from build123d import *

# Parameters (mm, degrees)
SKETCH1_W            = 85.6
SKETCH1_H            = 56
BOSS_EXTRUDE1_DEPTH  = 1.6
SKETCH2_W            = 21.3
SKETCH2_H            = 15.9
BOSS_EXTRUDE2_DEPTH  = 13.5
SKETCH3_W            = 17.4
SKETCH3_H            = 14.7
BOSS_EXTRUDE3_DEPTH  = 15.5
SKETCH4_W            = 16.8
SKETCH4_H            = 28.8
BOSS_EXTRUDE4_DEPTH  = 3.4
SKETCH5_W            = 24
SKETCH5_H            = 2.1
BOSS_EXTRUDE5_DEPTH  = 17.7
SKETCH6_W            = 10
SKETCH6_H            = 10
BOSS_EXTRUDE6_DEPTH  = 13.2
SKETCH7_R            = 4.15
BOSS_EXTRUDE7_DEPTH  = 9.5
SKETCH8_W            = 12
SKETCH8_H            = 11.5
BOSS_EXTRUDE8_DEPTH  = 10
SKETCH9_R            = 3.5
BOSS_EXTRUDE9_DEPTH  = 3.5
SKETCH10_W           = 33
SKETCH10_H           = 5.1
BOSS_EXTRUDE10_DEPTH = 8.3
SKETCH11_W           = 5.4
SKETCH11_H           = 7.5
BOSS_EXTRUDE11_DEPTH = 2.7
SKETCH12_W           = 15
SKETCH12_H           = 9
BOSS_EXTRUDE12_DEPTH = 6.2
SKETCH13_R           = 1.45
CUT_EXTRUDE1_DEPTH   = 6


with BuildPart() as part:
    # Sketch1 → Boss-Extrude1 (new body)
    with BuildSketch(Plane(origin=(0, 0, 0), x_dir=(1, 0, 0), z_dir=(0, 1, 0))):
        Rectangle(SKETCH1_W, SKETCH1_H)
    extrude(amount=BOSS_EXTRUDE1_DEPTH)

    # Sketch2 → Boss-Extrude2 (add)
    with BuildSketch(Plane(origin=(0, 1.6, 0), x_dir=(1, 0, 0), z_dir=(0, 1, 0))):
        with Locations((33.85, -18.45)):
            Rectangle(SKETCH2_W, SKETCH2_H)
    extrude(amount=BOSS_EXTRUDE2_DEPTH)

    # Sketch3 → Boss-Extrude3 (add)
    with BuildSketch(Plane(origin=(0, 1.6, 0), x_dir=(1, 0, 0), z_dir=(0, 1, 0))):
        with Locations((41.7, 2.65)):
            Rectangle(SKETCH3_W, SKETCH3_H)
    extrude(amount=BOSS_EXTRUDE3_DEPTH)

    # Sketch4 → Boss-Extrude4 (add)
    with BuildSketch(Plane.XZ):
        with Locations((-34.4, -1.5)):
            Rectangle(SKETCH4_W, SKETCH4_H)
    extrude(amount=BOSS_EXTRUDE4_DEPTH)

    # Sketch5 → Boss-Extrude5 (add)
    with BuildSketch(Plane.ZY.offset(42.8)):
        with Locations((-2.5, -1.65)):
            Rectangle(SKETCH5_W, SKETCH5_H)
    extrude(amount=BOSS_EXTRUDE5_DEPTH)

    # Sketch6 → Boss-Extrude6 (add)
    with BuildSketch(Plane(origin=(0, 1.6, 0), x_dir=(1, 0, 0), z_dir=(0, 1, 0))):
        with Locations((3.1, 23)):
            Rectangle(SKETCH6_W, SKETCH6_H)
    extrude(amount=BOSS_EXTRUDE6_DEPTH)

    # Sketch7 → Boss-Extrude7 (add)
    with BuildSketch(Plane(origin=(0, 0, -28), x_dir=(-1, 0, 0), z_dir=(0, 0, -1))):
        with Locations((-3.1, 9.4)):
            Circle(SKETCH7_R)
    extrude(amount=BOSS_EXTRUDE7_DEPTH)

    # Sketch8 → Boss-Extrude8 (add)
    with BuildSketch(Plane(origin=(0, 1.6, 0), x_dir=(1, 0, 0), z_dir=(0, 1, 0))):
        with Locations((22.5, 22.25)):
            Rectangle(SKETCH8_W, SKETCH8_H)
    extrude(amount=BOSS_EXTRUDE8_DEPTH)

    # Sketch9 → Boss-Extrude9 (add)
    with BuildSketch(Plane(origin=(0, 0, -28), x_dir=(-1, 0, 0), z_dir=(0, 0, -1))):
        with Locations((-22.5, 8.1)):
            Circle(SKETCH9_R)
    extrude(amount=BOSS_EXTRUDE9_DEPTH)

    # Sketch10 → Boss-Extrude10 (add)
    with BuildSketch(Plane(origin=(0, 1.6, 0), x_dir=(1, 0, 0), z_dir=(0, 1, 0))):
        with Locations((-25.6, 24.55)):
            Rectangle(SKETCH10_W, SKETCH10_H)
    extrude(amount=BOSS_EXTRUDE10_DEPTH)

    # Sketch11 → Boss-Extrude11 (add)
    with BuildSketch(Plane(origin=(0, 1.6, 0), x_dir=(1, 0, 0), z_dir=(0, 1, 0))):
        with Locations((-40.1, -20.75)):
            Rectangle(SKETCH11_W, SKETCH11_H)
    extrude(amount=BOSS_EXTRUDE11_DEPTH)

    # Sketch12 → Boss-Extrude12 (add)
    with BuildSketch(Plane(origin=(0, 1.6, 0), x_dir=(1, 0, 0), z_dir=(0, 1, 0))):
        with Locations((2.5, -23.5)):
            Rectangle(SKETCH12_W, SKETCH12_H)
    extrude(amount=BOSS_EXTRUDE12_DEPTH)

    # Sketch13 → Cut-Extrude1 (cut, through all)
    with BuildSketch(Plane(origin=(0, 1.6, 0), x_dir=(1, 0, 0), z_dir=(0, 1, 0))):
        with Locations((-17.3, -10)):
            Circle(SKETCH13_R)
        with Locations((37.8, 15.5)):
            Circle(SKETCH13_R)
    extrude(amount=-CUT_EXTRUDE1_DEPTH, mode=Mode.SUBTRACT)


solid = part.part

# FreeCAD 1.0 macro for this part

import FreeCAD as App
import Part
import Sketcher
from FreeCAD import Vector
Q = App.Units.Quantity


def add_polygon(sketch, points):
    """Adds a closed chain of lines whose ends are joined by coincident constraints."""
    first, n = sketch.GeometryCount, len(points)
    for a, b in zip(points, points[1:] + points[:1]):
        sketch.addGeometry(Part.LineSegment(App.Vector(*a, 0), App.Vector(*b, 0)), False)
    for i in range(n):
        sketch.addConstraint(Sketcher.Constraint("Coincident", first + i, 2, first + (i + 1) % n, 1))

doc = App.newDocument("Part")
params = doc.addObject("Spreadsheet::Sheet", "Params")
for row, (alias, value) in enumerate([
    ("sketch1_height", "56 mm"),
    ("sketch1_width", "85.6 mm"),
    ("pad1_length", "1.6 mm"),
    ("sketch2_width", "21.3 mm"),
    ("sketch2_height", "15.9 mm"),
    ("pad2_length", "13.5 mm"),
    ("sketch3_width", "17.4 mm"),
    ("sketch3_height", "14.7 mm"),
    ("pad3_length", "15.5 mm"),
    ("sketch4_width", "16.8 mm"),
    ("sketch4_height", "28.8 mm"),
    ("pad4_length", "3.4 mm"),
    ("sketch5_height", "24 mm"),
    ("sketch5_width", "2.1 mm"),
    ("pad5_length", "17.7 mm"),
    ("sketch6_width", "10 mm"),
    ("pad6_length", "13.2 mm"),
    ("sketch7_diameter", "8.3 mm"),
    ("pad7_length", "9.5 mm"),
    ("sketch8_width", "12 mm"),
    ("sketch8_height", "11.5 mm"),
    ("pad8_length", "10 mm"),
    ("sketch9_diameter", "7 mm"),
    ("pad9_length", "3.5 mm"),
    ("sketch10_width", "33 mm"),
    ("sketch10_height", "5.1 mm"),
    ("pad10_length", "8.3 mm"),
    ("sketch11_width", "5.4 mm"),
    ("sketch11_height", "7.5 mm"),
    ("pad11_length", "2.7 mm"),
    ("sketch12_width", "15 mm"),
    ("sketch12_height", "9 mm"),
    ("pad12_length", "6.2 mm"),
    ("sketch13_diameter", "2.9 mm"),
], start=1):
    params.set(f"A{row}", alias)
    params.set(f"B{row}", "=" + value)
    params.setAlias(f"B{row}", alias)

body = doc.addObject("PartDesign::Body", "Body")

# Sketch on XZ plane
sketch1 = doc.addObject("Sketcher::SketchObject", "Sketch")
body.addObject(sketch1)
sketch1.AttachmentSupport = (doc.XZ_Plane, [""])
sketch1.MapMode = "FlatFace"
add_polygon(sketch1, [(-43, -28), (-43, 28), (43, 28), (43, -28)])  # lines 0-3
sketch1.addConstraint(Sketcher.Constraint("Vertical", 0))
sketch1.addConstraint(Sketcher.Constraint("Horizontal", 1))
sketch1.addConstraint(Sketcher.Constraint("Vertical", 2))
sketch1.addConstraint(Sketcher.Constraint("Horizontal", 3))
sketch1.addConstraint(Sketcher.Constraint("Symmetric", 0, 2, 2, 2, -1, 1))
sketch1.addConstraint(Sketcher.Constraint("DistanceY", 0, 1, 0, 2, Q("56 mm")))
sketch1.addConstraint(Sketcher.Constraint("DistanceX", 1, 1, 1, 2, Q("85.6 mm")))
sketch1.setExpression("Constraints[9]", "Params.sketch1_height")
sketch1.setExpression("Constraints[10]", "Params.sketch1_width")
pad1 = doc.addObject("PartDesign::Pad", "Pad")
body.addObject(pad1)
pad1.Profile = sketch1
pad1.setExpression("Length", "Params.pad1_length")
pad1.Reversed = True

# Sketch on XZ plane
sketch2 = doc.addObject("Sketcher::SketchObject", "Sketch001")
body.addObject(sketch2)
sketch2.AttachmentSupport = (doc.XZ_Plane, [""])
sketch2.MapMode = "FlatFace"
sketch2.AttachmentOffset = App.Placement(Vector(0, 0, -1.6), App.Rotation())
add_polygon(sketch2, [(23, 10), (23, 26), (44, 26), (44, 10)])  # lines 0-3
sketch2.addConstraint(Sketcher.Constraint("Vertical", 0))
sketch2.addConstraint(Sketcher.Constraint("Horizontal", 1))
sketch2.addConstraint(Sketcher.Constraint("Vertical", 2))
sketch2.addConstraint(Sketcher.Constraint("Horizontal", 3))
sketch2.addConstraint(Sketcher.Constraint("DistanceX", 1, 1, 1, 2, Q("21.3 mm")))
sketch2.addConstraint(Sketcher.Constraint("DistanceY", 0, 1, 0, 2, Q("15.9 mm")))
sketch2.addConstraint(Sketcher.Constraint("DistanceX", -1, 1, 0, 2, Q("23.2 mm")))
sketch2.addConstraint(Sketcher.Constraint("DistanceY", -1, 1, 0, 2, Q("26.4 mm")))
sketch2.setExpression("Constraints[8]", "Params.sketch2_width")
sketch2.setExpression("Constraints[9]", "Params.sketch2_height")
pad2 = doc.addObject("PartDesign::Pad", "Pad001")
body.addObject(pad2)
pad2.Profile = sketch2
pad2.setExpression("Length", "Params.pad2_length")
pad2.Reversed = True

# Sketch on XZ plane
sketch3 = doc.addObject("Sketcher::SketchObject", "Sketch002")
body.addObject(sketch3)
sketch3.AttachmentSupport = (doc.XZ_Plane, [""])
sketch3.MapMode = "FlatFace"
sketch3.AttachmentOffset = App.Placement(Vector(0, 0, -1.6), App.Rotation())
add_polygon(sketch3, [(33, -10), (33, 5), (50, 5), (50, -10)])  # lines 0-3
sketch3.addConstraint(Sketcher.Constraint("Vertical", 0))
sketch3.addConstraint(Sketcher.Constraint("Horizontal", 1))
sketch3.addConstraint(Sketcher.Constraint("Vertical", 2))
sketch3.addConstraint(Sketcher.Constraint("Horizontal", 3))
sketch3.addConstraint(Sketcher.Constraint("DistanceX", 1, 1, 1, 2, Q("17.4 mm")))
sketch3.addConstraint(Sketcher.Constraint("DistanceY", 0, 1, 0, 2, Q("14.7 mm")))
sketch3.addConstraint(Sketcher.Constraint("DistanceX", -1, 1, 0, 2, Q("33 mm")))
sketch3.addConstraint(Sketcher.Constraint("DistanceY", 2, 2, -1, 1, Q("10 mm")))
sketch3.setExpression("Constraints[8]", "Params.sketch3_width")
sketch3.setExpression("Constraints[9]", "Params.sketch3_height")
pad3 = doc.addObject("PartDesign::Pad", "Pad002")
body.addObject(pad3)
pad3.Profile = sketch3
pad3.setExpression("Length", "Params.pad3_length")
pad3.Reversed = True

# Sketch on XZ plane
sketch4 = doc.addObject("Sketcher::SketchObject", "Sketch003")
body.addObject(sketch4)
sketch4.AttachmentSupport = (doc.XZ_Plane, [""])
sketch4.MapMode = "FlatFace"
add_polygon(sketch4, [(-43, 13), (-43, -16), (-26, -16), (-26, 13)])  # lines 0-3
sketch4.addConstraint(Sketcher.Constraint("Vertical", 0))
sketch4.addConstraint(Sketcher.Constraint("Horizontal", 1))
sketch4.addConstraint(Sketcher.Constraint("Vertical", 2))
sketch4.addConstraint(Sketcher.Constraint("Horizontal", 3))
sketch4.addConstraint(Sketcher.Constraint("DistanceX", 1, 1, 1, 2, Q("16.8 mm")))
sketch4.addConstraint(Sketcher.Constraint("DistanceY", 0, 2, 0, 1, Q("28.8 mm")))
sketch4.addConstraint(Sketcher.Constraint("DistanceX", 1, 2, -1, 1, Q("26 mm")))
sketch4.addConstraint(Sketcher.Constraint("DistanceY", 0, 2, -1, 1, Q("15.9 mm")))
sketch4.setExpression("Constraints[8]", "Params.sketch4_width")
sketch4.setExpression("Constraints[9]", "Params.sketch4_height")
pad4 = doc.addObject("PartDesign::Pad", "Pad003")
body.addObject(pad4)
pad4.Profile = sketch4
pad4.setExpression("Length", "Params.pad4_length")

# Sketch on YZ plane
sketch5 = doc.addObject("Sketcher::SketchObject", "Sketch004")
body.addObject(sketch5)
sketch5.AttachmentSupport = (doc.YZ_Plane, [""])
sketch5.MapMode = "FlatFace"
sketch5.AttachmentOffset = App.Placement(Vector(0, 0, -42.8), App.Rotation())
add_polygon(sketch5, [(-0.6, -14.5), (-2.7, -14.5), (-2.7, 9.5), (-0.6, 9.5)])  # lines 0-3
sketch5.addConstraint(Sketcher.Constraint("Horizontal", 0))
sketch5.addConstraint(Sketcher.Constraint("Vertical", 1))
sketch5.addConstraint(Sketcher.Constraint("Horizontal", 2))
sketch5.addConstraint(Sketcher.Constraint("Vertical", 3))
sketch5.addConstraint(Sketcher.Constraint("DistanceY", 1, 1, 1, 2, Q("24 mm")))
sketch5.addConstraint(Sketcher.Constraint("DistanceX", 0, 2, 0, 1, Q("2.1 mm")))
sketch5.addConstraint(Sketcher.Constraint("DistanceX", 0, 2, -1, 1, Q("2.7 mm")))
sketch5.addConstraint(Sketcher.Constraint("DistanceY", 0, 2, -1, 1, Q("14.5 mm")))
sketch5.setExpression("Constraints[8]", "Params.sketch5_height")
sketch5.setExpression("Constraints[9]", "Params.sketch5_width")
pad5 = doc.addObject("PartDesign::Pad", "Pad004")
body.addObject(pad5)
pad5.Profile = sketch5
pad5.setExpression("Length", "Params.pad5_length")
pad5.Reversed = True

# Sketch on XZ plane
sketch6 = doc.addObject("Sketcher::SketchObject", "Sketch005")
body.addObject(sketch6)
sketch6.AttachmentSupport = (doc.XZ_Plane, [""])
sketch6.MapMode = "FlatFace"
sketch6.AttachmentOffset = App.Placement(Vector(0, 0, -1.6), App.Rotation())
add_polygon(sketch6, [(-2, -28), (-2, -18), (8, -18), (8, -28)])  # lines 0-3
sketch6.addConstraint(Sketcher.Constraint("Vertical", 0))
sketch6.addConstraint(Sketcher.Constraint("Horizontal", 1))
sketch6.addConstraint(Sketcher.Constraint("Vertical", 2))
sketch6.addConstraint(Sketcher.Constraint("Horizontal", 3))
sketch6.addConstraint(Sketcher.Constraint("Equal", 3, 0))
sketch6.addConstraint(Sketcher.Constraint("DistanceX", 1, 1, 1, 2, Q("10 mm")))
sketch6.addConstraint(Sketcher.Constraint("DistanceY", 0, 2, -1, 1, Q("18 mm")))
sketch6.addConstraint(Sketcher.Constraint("DistanceX", 0, 2, -1, 1, Q("1.9 mm")))
sketch6.setExpression("Constraints[9]", "Params.sketch6_width")
pad6 = doc.addObject("PartDesign::Pad", "Pad005")
body.addObject(pad6)
pad6.Profile = sketch6
pad6.setExpression("Length", "Params.pad6_length")
pad6.Reversed = True

# Sketch on XY plane
sketch7 = doc.addObject("Sketcher::SketchObject", "Sketch006")
body.addObject(sketch7)
sketch7.AttachmentSupport = (doc.XY_Plane, [""])
sketch7.MapMode = "FlatFace"
sketch7.AttachmentOffset = App.Placement(Vector(0, 0, -28), App.Rotation())
sketch7.addGeometry(Part.Circle(Vector(3.1, 9.4, 0), Vector(0, 0, 1), 4.2), False)
sketch7.addConstraint(Sketcher.Constraint("Diameter", 0, Q("8.3 mm")))
sketch7.addConstraint(Sketcher.Constraint("DistanceX", -1, 1, 0, 3, Q("3.1 mm")))
sketch7.addConstraint(Sketcher.Constraint("DistanceY", -1, 1, 0, 3, Q("9.4 mm")))
sketch7.setExpression("Constraints[0]", "Params.sketch7_diameter")
pad7 = doc.addObject("PartDesign::Pad", "Pad006")
body.addObject(pad7)
pad7.Profile = sketch7
pad7.setExpression("Length", "Params.pad7_length")
pad7.Reversed = True

# Sketch on XZ plane
sketch8 = doc.addObject("Sketcher::SketchObject", "Sketch007")
body.addObject(sketch8)
sketch8.AttachmentSupport = (doc.XZ_Plane, [""])
sketch8.MapMode = "FlatFace"
sketch8.AttachmentOffset = App.Placement(Vector(0, 0, -1.6), App.Rotation())
add_polygon(sketch8, [(16, -28), (16, -16), (28, -16), (28, -28)])  # lines 0-3
sketch8.addConstraint(Sketcher.Constraint("Vertical", 0))
sketch8.addConstraint(Sketcher.Constraint("Horizontal", 1))
sketch8.addConstraint(Sketcher.Constraint("Vertical", 2))
sketch8.addConstraint(Sketcher.Constraint("Horizontal", 3))
sketch8.addConstraint(Sketcher.Constraint("DistanceX", 1, 1, 1, 2, Q("12 mm")))
sketch8.addConstraint(Sketcher.Constraint("DistanceY", 0, 1, 0, 2, Q("11.5 mm")))
sketch8.addConstraint(Sketcher.Constraint("DistanceY", 2, 2, -1, 1, Q("28 mm")))
sketch8.addConstraint(Sketcher.Constraint("DistanceX", -1, 1, 0, 2, Q("16.5 mm")))
sketch8.setExpression("Constraints[8]", "Params.sketch8_width")
sketch8.setExpression("Constraints[9]", "Params.sketch8_height")
pad8 = doc.addObject("PartDesign::Pad", "Pad007")
body.addObject(pad8)
pad8.Profile = sketch8
pad8.setExpression("Length", "Params.pad8_length")
pad8.Reversed = True

# Sketch on XY plane
sketch9 = doc.addObject("Sketcher::SketchObject", "Sketch008")
body.addObject(sketch9)
sketch9.AttachmentSupport = (doc.XY_Plane, [""])
sketch9.MapMode = "FlatFace"
sketch9.AttachmentOffset = App.Placement(Vector(0, 0, -28), App.Rotation())
sketch9.addGeometry(Part.Circle(Vector(22.5, 8.1, 0), Vector(0, 0, 1), 3.5), False)
sketch9.addConstraint(Sketcher.Constraint("Diameter", 0, Q("7 mm")))
sketch9.addConstraint(Sketcher.Constraint("DistanceX", -1, 1, 0, 3, Q("22.5 mm")))
sketch9.addConstraint(Sketcher.Constraint("DistanceY", -1, 1, 0, 3, Q("8.1 mm")))
sketch9.setExpression("Constraints[0]", "Params.sketch9_diameter")
pad9 = doc.addObject("PartDesign::Pad", "Pad008")
body.addObject(pad9)
pad9.Profile = sketch9
pad9.setExpression("Length", "Params.pad9_length")
pad9.Reversed = True

# Sketch on XZ plane
sketch10 = doc.addObject("Sketcher::SketchObject", "Sketch009")
body.addObject(sketch10)
sketch10.AttachmentSupport = (doc.XZ_Plane, [""])
sketch10.MapMode = "FlatFace"
sketch10.AttachmentOffset = App.Placement(Vector(0, 0, -1.6), App.Rotation())
add_polygon(sketch10, [(-42, -27), (-42, -22), (-9, -22), (-9, -27)])  # lines 0-3
sketch10.addConstraint(Sketcher.Constraint("Vertical", 0))
sketch10.addConstraint(Sketcher.Constraint("Horizontal", 1))
sketch10.addConstraint(Sketcher.Constraint("Vertical", 2))
sketch10.addConstraint(Sketcher.Constraint("Horizontal", 3))
sketch10.addConstraint(Sketcher.Constraint("DistanceX", 1, 1, 1, 2, Q("33 mm")))
sketch10.addConstraint(Sketcher.Constraint("DistanceY", 0, 1, 0, 2, Q("5.1 mm")))
sketch10.addConstraint(Sketcher.Constraint("DistanceY", 0, 2, -1, 1, Q("22 mm")))
sketch10.addConstraint(Sketcher.Constraint("DistanceX", 0, 2, -1, 1, Q("42.1 mm")))
sketch10.setExpression("Constraints[8]", "Params.sketch10_width")
sketch10.setExpression("Constraints[9]", "Params.sketch10_height")
pad10 = doc.addObject("PartDesign::Pad", "Pad009")
body.addObject(pad10)
pad10.Profile = sketch10
pad10.setExpression("Length", "Params.pad10_length")
pad10.Reversed = True

# Sketch on XZ plane
sketch11 = doc.addObject("Sketcher::SketchObject", "Sketch010")
body.addObject(sketch11)
sketch11.AttachmentSupport = (doc.XZ_Plane, [""])
sketch11.MapMode = "FlatFace"
sketch11.AttachmentOffset = App.Placement(Vector(0, 0, -1.6), App.Rotation())
add_polygon(sketch11, [(-43, 17), (-43, 24), (-37, 24), (-37, 17)])  # lines 0-3
sketch11.addConstraint(Sketcher.Constraint("Vertical", 0))
sketch11.addConstraint(Sketcher.Constraint("Horizontal", 1))
sketch11.addConstraint(Sketcher.Constraint("Vertical", 2))
sketch11.addConstraint(Sketcher.Constraint("Horizontal", 3))
sketch11.addConstraint(Sketcher.Constraint("DistanceX", 1, 1, 1, 2, Q("5.4 mm")))
sketch11.addConstraint(Sketcher.Constraint("DistanceY", 0, 1, 0, 2, Q("7.5 mm")))
sketch11.addConstraint(Sketcher.Constraint("DistanceY", -1, 1, 2, 2, Q("17 mm")))
sketch11.addConstraint(Sketcher.Constraint("DistanceX", 0, 2, -1, 1, Q("42.8 mm")))
sketch11.setExpression("Constraints[8]", "Params.sketch11_width")
sketch11.setExpression("Constraints[9]", "Params.sketch11_height")
pad11 = doc.addObject("PartDesign::Pad", "Pad010")
body.addObject(pad11)
pad11.Profile = sketch11
pad11.setExpression("Length", "Params.pad11_length")
pad11.Reversed = True

# Sketch on XZ plane
sketch12 = doc.addObject("Sketcher::SketchObject", "Sketch011")
body.addObject(sketch12)
sketch12.AttachmentSupport = (doc.XZ_Plane, [""])
sketch12.MapMode = "FlatFace"
sketch12.AttachmentOffset = App.Placement(Vector(0, 0, -1.6), App.Rotation())
add_polygon(sketch12, [(-5, 19), (-5, 28), (10, 28), (10, 19)])  # lines 0-3
sketch12.addConstraint(Sketcher.Constraint("Vertical", 0))
sketch12.addConstraint(Sketcher.Constraint("Horizontal", 1))
sketch12.addConstraint(Sketcher.Constraint("Vertical", 2))
sketch12.addConstraint(Sketcher.Constraint("Horizontal", 3))
sketch12.addConstraint(Sketcher.Constraint("DistanceX", 1, 1, 1, 2, Q("15 mm")))
sketch12.addConstraint(Sketcher.Constraint("DistanceY", 0, 1, 0, 2, Q("9 mm")))
sketch12.addConstraint(Sketcher.Constraint("DistanceX", 0, 2, -1, 1, Q("5 mm")))
sketch12.addConstraint(Sketcher.Constraint("DistanceY", -1, 1, 0, 2, Q("28 mm")))
sketch12.setExpression("Constraints[8]", "Params.sketch12_width")
sketch12.setExpression("Constraints[9]", "Params.sketch12_height")
pad12 = doc.addObject("PartDesign::Pad", "Pad011")
body.addObject(pad12)
pad12.Profile = sketch12
pad12.setExpression("Length", "Params.pad12_length")
pad12.Reversed = True

# Sketch on XZ plane
sketch13 = doc.addObject("Sketcher::SketchObject", "Sketch012")
body.addObject(sketch13)
sketch13.AttachmentSupport = (doc.XZ_Plane, [""])
sketch13.MapMode = "FlatFace"
sketch13.AttachmentOffset = App.Placement(Vector(0, 0, -1.6), App.Rotation())
sketch13.addGeometry(Part.Circle(Vector(-17.3, 10, 0), Vector(0, 0, 1), 1.4), False)
sketch13.addGeometry(Part.Circle(Vector(37.8, -15.5, 0), Vector(0, 0, 1), 1.4), False)
sketch13.addConstraint(Sketcher.Constraint("Equal", 0, 1))
sketch13.addConstraint(Sketcher.Constraint("Diameter", 0, Q("2.9 mm")))
sketch13.addConstraint(Sketcher.Constraint("DistanceY", -1, 1, 0, 3, Q("10 mm")))
sketch13.addConstraint(Sketcher.Constraint("DistanceX", 0, 3, -1, 1, Q("17.3 mm")))
sketch13.addConstraint(Sketcher.Constraint("DistanceX", -1, 1, 1, 3, Q("37.8 mm")))
sketch13.addConstraint(Sketcher.Constraint("DistanceY", 1, 3, -1, 1, Q("15.5 mm")))
sketch13.setExpression("Constraints[1]", "Params.sketch13_diameter")
pocket1 = doc.addObject("PartDesign::Pocket", "Pocket")
body.addObject(pocket1)
pocket1.Profile = sketch13
pocket1.Type = "ThroughAll"
pocket1.Reversed = True

doc.recompute()
